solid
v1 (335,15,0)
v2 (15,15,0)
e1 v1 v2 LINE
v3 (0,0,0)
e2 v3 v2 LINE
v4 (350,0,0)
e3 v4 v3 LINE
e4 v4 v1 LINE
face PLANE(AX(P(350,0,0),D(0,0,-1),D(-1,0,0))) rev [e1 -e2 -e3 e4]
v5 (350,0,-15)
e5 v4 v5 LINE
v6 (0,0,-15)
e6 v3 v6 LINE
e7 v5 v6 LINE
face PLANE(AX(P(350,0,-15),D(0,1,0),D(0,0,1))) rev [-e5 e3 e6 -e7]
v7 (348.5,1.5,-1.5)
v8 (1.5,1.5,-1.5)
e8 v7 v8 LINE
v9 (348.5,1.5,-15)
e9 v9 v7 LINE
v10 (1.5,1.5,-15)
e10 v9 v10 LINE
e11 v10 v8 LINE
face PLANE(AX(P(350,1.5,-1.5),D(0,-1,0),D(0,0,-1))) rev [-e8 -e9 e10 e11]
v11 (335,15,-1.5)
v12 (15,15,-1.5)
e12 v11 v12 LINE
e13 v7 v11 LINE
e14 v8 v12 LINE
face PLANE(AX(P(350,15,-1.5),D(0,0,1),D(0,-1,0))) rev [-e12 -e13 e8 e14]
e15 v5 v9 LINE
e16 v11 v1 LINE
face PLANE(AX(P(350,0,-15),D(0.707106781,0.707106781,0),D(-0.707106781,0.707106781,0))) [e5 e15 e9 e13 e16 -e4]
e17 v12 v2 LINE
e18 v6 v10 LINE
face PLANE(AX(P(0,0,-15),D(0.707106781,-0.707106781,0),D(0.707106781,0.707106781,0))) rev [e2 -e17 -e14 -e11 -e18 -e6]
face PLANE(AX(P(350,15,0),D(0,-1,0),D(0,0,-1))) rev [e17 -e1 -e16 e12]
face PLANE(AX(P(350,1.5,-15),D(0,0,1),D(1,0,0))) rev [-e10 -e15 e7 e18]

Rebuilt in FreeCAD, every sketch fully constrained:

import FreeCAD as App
import Part
import Sketcher


def add_polygon(sketch, points):
    """Adds a closed chain of lines whose ends are joined by coincident constraints."""
    first, n = sketch.GeometryCount, len(points)
    for a, b in zip(points, points[1:] + points[:1]):
        sketch.addGeometry(Part.LineSegment(App.Vector(*a, 0), App.Vector(*b, 0)), False)
    for i in range(n):
        sketch.addConstraint(Sketcher.Constraint("Coincident", first + i, 2, first + (i + 1) % n, 1))

doc = App.newDocument("Part")
body = doc.addObject("PartDesign::Body", "Body")

sketch1 = body.newObject("Sketcher::SketchObject", "Sketch")
sketch1.AttachmentSupport = (doc.getObject("YZ_Plane"), [""])
sketch1.MapMode = "FlatFace"
add_polygon(sketch1, [(15, 0), (0, 0), (0, -15), (1.5, -15), (1.5, -1.5), (15, -1.5)])
sketch1.addConstraint(Sketcher.Constraint("Horizontal", 0))
sketch1.addConstraint(Sketcher.Constraint("Vertical", 1))
sketch1.addConstraint(Sketcher.Constraint("Horizontal", 2))
sketch1.addConstraint(Sketcher.Constraint("Vertical", 3))
sketch1.addConstraint(Sketcher.Constraint("Horizontal", 4))
sketch1.addConstraint(Sketcher.Constraint("Vertical", 5))
sketch1.addConstraint(Sketcher.Constraint("Coincident", 0, 2, -1, 1))
sketch1.addConstraint(Sketcher.Constraint("Equal", 0, 1))
sketch1.addConstraint(Sketcher.Constraint("Equal", 4, 3))
sketch1.addConstraint(Sketcher.Constraint("DistanceX", 0, 2, 0, 1, 15.0))
sketch1.addConstraint(Sketcher.Constraint("DistanceX", 2, 1, 2, 2, 1.5))
pad1 = body.newObject("PartDesign::Pad", "Pad")
pad1.Profile = sketch1
pad1.Length = 350

sketch2 = body.newObject("Sketcher::SketchObject", "Sketch001")
sketch2.AttachmentSupport = (doc.getObject("XY_Plane"), [""])
sketch2.MapMode = "FlatFace"
add_polygon(sketch2, [(0, 0), (21.729874, 21.729874), (0, 21.729874)])
sketch2.addConstraint(Sketcher.Constraint("Horizontal", 1))
sketch2.addConstraint(Sketcher.Constraint("Vertical", 2))
sketch2.addConstraint(Sketcher.Constraint("Coincident", 2, 2, -1, 1))
sketch2.addConstraint(Sketcher.Constraint("Equal", 1, 2))
sketch2.addConstraint(Sketcher.Constraint("DistanceX", 1, 2, 1, 1, 21.729874))
pocket1 = body.newObject("PartDesign::Pocket", "Pocket")
pocket1.Profile = sketch2
pocket1.Type = "ThroughAll"
doc.recompute()

datumplane = body.newObject("PartDesign::Plane", "DatumPlane")
datumplane.AttachmentSupport = (doc.getObject("YZ_Plane"), [""])
datumplane.MapMode = "FlatFace"
datumplane.AttachmentOffset = App.Placement(App.Vector(0, 0, 175), App.Rotation())
mirrored = body.newObject("PartDesign::Mirrored", "Mirrored")
mirrored.Originals = [pocket1]
mirrored.MirrorPlane = (datumplane, [""])
body.Tip = mirrored

doc.recompute()
